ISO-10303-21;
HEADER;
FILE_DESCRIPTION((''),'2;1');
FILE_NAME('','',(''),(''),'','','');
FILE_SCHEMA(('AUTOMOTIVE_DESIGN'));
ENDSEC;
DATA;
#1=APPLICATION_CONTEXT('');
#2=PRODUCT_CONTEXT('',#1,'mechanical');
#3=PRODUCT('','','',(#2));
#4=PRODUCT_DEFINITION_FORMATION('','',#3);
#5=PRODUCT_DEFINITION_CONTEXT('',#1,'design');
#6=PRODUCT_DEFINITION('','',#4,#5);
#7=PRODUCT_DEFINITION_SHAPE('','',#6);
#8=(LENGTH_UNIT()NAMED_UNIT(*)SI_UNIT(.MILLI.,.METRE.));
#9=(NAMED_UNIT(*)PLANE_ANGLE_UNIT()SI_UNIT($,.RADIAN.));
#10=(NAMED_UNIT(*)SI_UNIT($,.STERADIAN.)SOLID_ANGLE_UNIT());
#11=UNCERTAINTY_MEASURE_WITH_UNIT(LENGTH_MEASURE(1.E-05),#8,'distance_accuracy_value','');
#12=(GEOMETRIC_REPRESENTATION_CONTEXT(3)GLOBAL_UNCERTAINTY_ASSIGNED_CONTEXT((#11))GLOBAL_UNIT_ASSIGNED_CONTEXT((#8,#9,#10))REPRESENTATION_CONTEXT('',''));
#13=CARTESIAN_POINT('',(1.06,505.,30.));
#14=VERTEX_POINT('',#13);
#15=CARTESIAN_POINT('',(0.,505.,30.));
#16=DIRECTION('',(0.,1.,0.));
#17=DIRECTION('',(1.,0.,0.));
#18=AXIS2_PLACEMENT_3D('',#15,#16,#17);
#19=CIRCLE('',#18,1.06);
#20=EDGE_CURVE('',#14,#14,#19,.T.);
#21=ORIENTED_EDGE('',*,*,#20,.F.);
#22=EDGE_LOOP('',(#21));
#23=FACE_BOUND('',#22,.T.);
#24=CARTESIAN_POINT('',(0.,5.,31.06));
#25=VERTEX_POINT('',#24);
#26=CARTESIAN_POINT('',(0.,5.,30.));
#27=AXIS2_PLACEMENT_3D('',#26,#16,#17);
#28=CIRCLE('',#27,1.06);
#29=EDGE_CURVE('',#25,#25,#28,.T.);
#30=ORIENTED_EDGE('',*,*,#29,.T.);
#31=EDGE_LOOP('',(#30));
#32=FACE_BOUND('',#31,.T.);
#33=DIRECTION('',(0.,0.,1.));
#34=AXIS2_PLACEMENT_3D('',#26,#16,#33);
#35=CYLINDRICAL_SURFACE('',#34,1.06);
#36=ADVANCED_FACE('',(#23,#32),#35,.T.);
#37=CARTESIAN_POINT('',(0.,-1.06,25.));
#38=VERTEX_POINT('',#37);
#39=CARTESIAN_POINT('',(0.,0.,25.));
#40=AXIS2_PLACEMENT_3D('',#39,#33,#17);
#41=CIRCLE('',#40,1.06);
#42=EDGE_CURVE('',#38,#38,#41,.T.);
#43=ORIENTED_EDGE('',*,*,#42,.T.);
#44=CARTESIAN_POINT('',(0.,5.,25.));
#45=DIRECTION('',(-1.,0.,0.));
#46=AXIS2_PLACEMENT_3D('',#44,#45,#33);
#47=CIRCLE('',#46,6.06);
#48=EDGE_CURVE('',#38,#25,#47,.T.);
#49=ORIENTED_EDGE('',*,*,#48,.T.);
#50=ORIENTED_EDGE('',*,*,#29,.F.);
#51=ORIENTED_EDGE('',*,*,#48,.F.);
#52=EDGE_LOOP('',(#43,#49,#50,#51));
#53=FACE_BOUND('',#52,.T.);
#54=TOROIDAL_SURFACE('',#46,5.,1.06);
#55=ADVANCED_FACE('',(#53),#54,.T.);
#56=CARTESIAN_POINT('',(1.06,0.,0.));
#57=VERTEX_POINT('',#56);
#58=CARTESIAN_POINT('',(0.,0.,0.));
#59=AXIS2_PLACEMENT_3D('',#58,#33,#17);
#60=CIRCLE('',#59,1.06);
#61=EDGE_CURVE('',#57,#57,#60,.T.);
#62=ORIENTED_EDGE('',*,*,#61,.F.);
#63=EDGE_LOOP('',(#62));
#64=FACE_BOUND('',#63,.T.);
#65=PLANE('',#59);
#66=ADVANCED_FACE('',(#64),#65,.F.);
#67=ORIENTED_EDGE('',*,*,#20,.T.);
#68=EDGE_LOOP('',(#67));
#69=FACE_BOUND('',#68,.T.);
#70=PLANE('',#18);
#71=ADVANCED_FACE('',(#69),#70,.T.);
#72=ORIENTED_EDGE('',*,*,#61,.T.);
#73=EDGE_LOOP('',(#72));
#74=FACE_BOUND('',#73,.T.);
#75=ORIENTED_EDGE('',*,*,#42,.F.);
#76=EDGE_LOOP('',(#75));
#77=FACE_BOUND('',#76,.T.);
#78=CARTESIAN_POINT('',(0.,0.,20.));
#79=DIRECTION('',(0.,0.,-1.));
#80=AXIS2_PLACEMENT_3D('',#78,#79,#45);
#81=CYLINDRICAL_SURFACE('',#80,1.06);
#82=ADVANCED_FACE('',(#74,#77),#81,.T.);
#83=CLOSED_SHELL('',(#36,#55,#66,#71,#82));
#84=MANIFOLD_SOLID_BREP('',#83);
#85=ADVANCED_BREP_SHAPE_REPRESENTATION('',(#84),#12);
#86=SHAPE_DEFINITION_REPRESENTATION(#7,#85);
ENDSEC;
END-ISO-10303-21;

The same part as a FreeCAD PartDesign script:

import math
import FreeCAD as App
import Part
import Sketcher

V = App.Vector

doc = App.newDocument("Part")
params = doc.addObject("Spreadsheet::Sheet", "Params")
for row, (alias, value) in enumerate([
    ("sketch1_diameter", "2.12 mm"),
    ("pad1_length", "20 mm"),
    ("sketch2_diameter", "2.12 mm"),
    ("sketch3_radius", "5 mm"),
    ("sketch3_width", "500 mm"),
    ("sketch3_height", "5 mm"),
], start=1):
    params.set(f"A{row}", alias)
    params.set(f"B{row}", "=" + value)
    params.setAlias(f"B{row}", alias)

body = doc.addObject("PartDesign::Body", "Body")

sketch1 = body.newObject("Sketcher::SketchObject", "Sketch")
sketch1.AttachmentSupport = (doc.getObject("XY_Plane"), [""])
sketch1.MapMode = "FlatFace"
sketch1.addGeometry(Part.Circle(V(0, 0, 0), V(0, 0, 1), 1.1), False)
sketch1.addConstraint([
    Sketcher.Constraint("Coincident", 0, 3, -1, 1),
    Sketcher.Constraint("Diameter", 0, 2.12),
])
sketch1.setExpression("Constraints[1]", "Params.sketch1_diameter")
pad1 = body.newObject("PartDesign::Pad", "Pad")
pad1.Profile = sketch1
pad1.setExpression("Length", "Params.pad1_length")

sketch2 = body.newObject("Sketcher::SketchObject", "Sketch001")
sketch2.AttachmentSupport = (doc.getObject("XY_Plane"), [""])
sketch2.MapMode = "FlatFace"
sketch2.AttachmentOffset = App.Placement(V(0, 0, 20), App.Rotation())
sketch2.addGeometry(Part.Circle(V(0, 0, 0), V(0, 0, 1), 1.1), False)
sketch2.addConstraint([
    Sketcher.Constraint("Coincident", 0, 3, -1, 1),
    Sketcher.Constraint("Diameter", 0, 2.12),
])
sketch2.setExpression("Constraints[1]", "Params.sketch2_diameter")

sketch3 = body.newObject("Sketcher::SketchObject", "Sketch002")
sketch3.AttachmentSupport = (doc.getObject("YZ_Plane"), [""])
sketch3.MapMode = "FlatFace"
sketch3.addGeometry([
    Part.LineSegment(V(0, 20, 0), V(0, 25, 0)),
    Part.ArcOfCircle(Part.Circle(V(5, 25, 0), V(0, 0, 1), 5), math.radians(90), math.radians(180)),
    Part.LineSegment(V(5, 30, 0), V(505, 30, 0)),
], False)
sketch3.addConstraint([
    Sketcher.Constraint("Tangent", 0, 2, 1, 2),
    Sketcher.Constraint("Tangent", 1, 1, 2, 1),
    Sketcher.Constraint("Vertical", 0),
    Sketcher.Constraint("Horizontal", 2),
    Sketcher.Constraint("PointOnObject", 0, 1, -2),
    Sketcher.Constraint("Radius", 1, 5.0),
    Sketcher.Constraint("DistanceX", 2, 1, 2, 2, 500.0),
    Sketcher.Constraint("DistanceY", 0, 1, 0, 2, 5.0),
    Sketcher.Constraint("DistanceY", -1, 1, 1, 3, 25.0),
])
sketch3.setExpression("Constraints[5]", "Params.sketch3_radius")
sketch3.setExpression("Constraints[6]", "Params.sketch3_width")
sketch3.setExpression("Constraints[7]", "Params.sketch3_height")
doc.recompute()

additivepipe = body.newObject("PartDesign::AdditivePipe", "AdditivePipe")
additivepipe.Profile = sketch2
additivepipe.Spine = (sketch3, ["Edge1", "Edge2", "Edge3"])

doc.recompute()
